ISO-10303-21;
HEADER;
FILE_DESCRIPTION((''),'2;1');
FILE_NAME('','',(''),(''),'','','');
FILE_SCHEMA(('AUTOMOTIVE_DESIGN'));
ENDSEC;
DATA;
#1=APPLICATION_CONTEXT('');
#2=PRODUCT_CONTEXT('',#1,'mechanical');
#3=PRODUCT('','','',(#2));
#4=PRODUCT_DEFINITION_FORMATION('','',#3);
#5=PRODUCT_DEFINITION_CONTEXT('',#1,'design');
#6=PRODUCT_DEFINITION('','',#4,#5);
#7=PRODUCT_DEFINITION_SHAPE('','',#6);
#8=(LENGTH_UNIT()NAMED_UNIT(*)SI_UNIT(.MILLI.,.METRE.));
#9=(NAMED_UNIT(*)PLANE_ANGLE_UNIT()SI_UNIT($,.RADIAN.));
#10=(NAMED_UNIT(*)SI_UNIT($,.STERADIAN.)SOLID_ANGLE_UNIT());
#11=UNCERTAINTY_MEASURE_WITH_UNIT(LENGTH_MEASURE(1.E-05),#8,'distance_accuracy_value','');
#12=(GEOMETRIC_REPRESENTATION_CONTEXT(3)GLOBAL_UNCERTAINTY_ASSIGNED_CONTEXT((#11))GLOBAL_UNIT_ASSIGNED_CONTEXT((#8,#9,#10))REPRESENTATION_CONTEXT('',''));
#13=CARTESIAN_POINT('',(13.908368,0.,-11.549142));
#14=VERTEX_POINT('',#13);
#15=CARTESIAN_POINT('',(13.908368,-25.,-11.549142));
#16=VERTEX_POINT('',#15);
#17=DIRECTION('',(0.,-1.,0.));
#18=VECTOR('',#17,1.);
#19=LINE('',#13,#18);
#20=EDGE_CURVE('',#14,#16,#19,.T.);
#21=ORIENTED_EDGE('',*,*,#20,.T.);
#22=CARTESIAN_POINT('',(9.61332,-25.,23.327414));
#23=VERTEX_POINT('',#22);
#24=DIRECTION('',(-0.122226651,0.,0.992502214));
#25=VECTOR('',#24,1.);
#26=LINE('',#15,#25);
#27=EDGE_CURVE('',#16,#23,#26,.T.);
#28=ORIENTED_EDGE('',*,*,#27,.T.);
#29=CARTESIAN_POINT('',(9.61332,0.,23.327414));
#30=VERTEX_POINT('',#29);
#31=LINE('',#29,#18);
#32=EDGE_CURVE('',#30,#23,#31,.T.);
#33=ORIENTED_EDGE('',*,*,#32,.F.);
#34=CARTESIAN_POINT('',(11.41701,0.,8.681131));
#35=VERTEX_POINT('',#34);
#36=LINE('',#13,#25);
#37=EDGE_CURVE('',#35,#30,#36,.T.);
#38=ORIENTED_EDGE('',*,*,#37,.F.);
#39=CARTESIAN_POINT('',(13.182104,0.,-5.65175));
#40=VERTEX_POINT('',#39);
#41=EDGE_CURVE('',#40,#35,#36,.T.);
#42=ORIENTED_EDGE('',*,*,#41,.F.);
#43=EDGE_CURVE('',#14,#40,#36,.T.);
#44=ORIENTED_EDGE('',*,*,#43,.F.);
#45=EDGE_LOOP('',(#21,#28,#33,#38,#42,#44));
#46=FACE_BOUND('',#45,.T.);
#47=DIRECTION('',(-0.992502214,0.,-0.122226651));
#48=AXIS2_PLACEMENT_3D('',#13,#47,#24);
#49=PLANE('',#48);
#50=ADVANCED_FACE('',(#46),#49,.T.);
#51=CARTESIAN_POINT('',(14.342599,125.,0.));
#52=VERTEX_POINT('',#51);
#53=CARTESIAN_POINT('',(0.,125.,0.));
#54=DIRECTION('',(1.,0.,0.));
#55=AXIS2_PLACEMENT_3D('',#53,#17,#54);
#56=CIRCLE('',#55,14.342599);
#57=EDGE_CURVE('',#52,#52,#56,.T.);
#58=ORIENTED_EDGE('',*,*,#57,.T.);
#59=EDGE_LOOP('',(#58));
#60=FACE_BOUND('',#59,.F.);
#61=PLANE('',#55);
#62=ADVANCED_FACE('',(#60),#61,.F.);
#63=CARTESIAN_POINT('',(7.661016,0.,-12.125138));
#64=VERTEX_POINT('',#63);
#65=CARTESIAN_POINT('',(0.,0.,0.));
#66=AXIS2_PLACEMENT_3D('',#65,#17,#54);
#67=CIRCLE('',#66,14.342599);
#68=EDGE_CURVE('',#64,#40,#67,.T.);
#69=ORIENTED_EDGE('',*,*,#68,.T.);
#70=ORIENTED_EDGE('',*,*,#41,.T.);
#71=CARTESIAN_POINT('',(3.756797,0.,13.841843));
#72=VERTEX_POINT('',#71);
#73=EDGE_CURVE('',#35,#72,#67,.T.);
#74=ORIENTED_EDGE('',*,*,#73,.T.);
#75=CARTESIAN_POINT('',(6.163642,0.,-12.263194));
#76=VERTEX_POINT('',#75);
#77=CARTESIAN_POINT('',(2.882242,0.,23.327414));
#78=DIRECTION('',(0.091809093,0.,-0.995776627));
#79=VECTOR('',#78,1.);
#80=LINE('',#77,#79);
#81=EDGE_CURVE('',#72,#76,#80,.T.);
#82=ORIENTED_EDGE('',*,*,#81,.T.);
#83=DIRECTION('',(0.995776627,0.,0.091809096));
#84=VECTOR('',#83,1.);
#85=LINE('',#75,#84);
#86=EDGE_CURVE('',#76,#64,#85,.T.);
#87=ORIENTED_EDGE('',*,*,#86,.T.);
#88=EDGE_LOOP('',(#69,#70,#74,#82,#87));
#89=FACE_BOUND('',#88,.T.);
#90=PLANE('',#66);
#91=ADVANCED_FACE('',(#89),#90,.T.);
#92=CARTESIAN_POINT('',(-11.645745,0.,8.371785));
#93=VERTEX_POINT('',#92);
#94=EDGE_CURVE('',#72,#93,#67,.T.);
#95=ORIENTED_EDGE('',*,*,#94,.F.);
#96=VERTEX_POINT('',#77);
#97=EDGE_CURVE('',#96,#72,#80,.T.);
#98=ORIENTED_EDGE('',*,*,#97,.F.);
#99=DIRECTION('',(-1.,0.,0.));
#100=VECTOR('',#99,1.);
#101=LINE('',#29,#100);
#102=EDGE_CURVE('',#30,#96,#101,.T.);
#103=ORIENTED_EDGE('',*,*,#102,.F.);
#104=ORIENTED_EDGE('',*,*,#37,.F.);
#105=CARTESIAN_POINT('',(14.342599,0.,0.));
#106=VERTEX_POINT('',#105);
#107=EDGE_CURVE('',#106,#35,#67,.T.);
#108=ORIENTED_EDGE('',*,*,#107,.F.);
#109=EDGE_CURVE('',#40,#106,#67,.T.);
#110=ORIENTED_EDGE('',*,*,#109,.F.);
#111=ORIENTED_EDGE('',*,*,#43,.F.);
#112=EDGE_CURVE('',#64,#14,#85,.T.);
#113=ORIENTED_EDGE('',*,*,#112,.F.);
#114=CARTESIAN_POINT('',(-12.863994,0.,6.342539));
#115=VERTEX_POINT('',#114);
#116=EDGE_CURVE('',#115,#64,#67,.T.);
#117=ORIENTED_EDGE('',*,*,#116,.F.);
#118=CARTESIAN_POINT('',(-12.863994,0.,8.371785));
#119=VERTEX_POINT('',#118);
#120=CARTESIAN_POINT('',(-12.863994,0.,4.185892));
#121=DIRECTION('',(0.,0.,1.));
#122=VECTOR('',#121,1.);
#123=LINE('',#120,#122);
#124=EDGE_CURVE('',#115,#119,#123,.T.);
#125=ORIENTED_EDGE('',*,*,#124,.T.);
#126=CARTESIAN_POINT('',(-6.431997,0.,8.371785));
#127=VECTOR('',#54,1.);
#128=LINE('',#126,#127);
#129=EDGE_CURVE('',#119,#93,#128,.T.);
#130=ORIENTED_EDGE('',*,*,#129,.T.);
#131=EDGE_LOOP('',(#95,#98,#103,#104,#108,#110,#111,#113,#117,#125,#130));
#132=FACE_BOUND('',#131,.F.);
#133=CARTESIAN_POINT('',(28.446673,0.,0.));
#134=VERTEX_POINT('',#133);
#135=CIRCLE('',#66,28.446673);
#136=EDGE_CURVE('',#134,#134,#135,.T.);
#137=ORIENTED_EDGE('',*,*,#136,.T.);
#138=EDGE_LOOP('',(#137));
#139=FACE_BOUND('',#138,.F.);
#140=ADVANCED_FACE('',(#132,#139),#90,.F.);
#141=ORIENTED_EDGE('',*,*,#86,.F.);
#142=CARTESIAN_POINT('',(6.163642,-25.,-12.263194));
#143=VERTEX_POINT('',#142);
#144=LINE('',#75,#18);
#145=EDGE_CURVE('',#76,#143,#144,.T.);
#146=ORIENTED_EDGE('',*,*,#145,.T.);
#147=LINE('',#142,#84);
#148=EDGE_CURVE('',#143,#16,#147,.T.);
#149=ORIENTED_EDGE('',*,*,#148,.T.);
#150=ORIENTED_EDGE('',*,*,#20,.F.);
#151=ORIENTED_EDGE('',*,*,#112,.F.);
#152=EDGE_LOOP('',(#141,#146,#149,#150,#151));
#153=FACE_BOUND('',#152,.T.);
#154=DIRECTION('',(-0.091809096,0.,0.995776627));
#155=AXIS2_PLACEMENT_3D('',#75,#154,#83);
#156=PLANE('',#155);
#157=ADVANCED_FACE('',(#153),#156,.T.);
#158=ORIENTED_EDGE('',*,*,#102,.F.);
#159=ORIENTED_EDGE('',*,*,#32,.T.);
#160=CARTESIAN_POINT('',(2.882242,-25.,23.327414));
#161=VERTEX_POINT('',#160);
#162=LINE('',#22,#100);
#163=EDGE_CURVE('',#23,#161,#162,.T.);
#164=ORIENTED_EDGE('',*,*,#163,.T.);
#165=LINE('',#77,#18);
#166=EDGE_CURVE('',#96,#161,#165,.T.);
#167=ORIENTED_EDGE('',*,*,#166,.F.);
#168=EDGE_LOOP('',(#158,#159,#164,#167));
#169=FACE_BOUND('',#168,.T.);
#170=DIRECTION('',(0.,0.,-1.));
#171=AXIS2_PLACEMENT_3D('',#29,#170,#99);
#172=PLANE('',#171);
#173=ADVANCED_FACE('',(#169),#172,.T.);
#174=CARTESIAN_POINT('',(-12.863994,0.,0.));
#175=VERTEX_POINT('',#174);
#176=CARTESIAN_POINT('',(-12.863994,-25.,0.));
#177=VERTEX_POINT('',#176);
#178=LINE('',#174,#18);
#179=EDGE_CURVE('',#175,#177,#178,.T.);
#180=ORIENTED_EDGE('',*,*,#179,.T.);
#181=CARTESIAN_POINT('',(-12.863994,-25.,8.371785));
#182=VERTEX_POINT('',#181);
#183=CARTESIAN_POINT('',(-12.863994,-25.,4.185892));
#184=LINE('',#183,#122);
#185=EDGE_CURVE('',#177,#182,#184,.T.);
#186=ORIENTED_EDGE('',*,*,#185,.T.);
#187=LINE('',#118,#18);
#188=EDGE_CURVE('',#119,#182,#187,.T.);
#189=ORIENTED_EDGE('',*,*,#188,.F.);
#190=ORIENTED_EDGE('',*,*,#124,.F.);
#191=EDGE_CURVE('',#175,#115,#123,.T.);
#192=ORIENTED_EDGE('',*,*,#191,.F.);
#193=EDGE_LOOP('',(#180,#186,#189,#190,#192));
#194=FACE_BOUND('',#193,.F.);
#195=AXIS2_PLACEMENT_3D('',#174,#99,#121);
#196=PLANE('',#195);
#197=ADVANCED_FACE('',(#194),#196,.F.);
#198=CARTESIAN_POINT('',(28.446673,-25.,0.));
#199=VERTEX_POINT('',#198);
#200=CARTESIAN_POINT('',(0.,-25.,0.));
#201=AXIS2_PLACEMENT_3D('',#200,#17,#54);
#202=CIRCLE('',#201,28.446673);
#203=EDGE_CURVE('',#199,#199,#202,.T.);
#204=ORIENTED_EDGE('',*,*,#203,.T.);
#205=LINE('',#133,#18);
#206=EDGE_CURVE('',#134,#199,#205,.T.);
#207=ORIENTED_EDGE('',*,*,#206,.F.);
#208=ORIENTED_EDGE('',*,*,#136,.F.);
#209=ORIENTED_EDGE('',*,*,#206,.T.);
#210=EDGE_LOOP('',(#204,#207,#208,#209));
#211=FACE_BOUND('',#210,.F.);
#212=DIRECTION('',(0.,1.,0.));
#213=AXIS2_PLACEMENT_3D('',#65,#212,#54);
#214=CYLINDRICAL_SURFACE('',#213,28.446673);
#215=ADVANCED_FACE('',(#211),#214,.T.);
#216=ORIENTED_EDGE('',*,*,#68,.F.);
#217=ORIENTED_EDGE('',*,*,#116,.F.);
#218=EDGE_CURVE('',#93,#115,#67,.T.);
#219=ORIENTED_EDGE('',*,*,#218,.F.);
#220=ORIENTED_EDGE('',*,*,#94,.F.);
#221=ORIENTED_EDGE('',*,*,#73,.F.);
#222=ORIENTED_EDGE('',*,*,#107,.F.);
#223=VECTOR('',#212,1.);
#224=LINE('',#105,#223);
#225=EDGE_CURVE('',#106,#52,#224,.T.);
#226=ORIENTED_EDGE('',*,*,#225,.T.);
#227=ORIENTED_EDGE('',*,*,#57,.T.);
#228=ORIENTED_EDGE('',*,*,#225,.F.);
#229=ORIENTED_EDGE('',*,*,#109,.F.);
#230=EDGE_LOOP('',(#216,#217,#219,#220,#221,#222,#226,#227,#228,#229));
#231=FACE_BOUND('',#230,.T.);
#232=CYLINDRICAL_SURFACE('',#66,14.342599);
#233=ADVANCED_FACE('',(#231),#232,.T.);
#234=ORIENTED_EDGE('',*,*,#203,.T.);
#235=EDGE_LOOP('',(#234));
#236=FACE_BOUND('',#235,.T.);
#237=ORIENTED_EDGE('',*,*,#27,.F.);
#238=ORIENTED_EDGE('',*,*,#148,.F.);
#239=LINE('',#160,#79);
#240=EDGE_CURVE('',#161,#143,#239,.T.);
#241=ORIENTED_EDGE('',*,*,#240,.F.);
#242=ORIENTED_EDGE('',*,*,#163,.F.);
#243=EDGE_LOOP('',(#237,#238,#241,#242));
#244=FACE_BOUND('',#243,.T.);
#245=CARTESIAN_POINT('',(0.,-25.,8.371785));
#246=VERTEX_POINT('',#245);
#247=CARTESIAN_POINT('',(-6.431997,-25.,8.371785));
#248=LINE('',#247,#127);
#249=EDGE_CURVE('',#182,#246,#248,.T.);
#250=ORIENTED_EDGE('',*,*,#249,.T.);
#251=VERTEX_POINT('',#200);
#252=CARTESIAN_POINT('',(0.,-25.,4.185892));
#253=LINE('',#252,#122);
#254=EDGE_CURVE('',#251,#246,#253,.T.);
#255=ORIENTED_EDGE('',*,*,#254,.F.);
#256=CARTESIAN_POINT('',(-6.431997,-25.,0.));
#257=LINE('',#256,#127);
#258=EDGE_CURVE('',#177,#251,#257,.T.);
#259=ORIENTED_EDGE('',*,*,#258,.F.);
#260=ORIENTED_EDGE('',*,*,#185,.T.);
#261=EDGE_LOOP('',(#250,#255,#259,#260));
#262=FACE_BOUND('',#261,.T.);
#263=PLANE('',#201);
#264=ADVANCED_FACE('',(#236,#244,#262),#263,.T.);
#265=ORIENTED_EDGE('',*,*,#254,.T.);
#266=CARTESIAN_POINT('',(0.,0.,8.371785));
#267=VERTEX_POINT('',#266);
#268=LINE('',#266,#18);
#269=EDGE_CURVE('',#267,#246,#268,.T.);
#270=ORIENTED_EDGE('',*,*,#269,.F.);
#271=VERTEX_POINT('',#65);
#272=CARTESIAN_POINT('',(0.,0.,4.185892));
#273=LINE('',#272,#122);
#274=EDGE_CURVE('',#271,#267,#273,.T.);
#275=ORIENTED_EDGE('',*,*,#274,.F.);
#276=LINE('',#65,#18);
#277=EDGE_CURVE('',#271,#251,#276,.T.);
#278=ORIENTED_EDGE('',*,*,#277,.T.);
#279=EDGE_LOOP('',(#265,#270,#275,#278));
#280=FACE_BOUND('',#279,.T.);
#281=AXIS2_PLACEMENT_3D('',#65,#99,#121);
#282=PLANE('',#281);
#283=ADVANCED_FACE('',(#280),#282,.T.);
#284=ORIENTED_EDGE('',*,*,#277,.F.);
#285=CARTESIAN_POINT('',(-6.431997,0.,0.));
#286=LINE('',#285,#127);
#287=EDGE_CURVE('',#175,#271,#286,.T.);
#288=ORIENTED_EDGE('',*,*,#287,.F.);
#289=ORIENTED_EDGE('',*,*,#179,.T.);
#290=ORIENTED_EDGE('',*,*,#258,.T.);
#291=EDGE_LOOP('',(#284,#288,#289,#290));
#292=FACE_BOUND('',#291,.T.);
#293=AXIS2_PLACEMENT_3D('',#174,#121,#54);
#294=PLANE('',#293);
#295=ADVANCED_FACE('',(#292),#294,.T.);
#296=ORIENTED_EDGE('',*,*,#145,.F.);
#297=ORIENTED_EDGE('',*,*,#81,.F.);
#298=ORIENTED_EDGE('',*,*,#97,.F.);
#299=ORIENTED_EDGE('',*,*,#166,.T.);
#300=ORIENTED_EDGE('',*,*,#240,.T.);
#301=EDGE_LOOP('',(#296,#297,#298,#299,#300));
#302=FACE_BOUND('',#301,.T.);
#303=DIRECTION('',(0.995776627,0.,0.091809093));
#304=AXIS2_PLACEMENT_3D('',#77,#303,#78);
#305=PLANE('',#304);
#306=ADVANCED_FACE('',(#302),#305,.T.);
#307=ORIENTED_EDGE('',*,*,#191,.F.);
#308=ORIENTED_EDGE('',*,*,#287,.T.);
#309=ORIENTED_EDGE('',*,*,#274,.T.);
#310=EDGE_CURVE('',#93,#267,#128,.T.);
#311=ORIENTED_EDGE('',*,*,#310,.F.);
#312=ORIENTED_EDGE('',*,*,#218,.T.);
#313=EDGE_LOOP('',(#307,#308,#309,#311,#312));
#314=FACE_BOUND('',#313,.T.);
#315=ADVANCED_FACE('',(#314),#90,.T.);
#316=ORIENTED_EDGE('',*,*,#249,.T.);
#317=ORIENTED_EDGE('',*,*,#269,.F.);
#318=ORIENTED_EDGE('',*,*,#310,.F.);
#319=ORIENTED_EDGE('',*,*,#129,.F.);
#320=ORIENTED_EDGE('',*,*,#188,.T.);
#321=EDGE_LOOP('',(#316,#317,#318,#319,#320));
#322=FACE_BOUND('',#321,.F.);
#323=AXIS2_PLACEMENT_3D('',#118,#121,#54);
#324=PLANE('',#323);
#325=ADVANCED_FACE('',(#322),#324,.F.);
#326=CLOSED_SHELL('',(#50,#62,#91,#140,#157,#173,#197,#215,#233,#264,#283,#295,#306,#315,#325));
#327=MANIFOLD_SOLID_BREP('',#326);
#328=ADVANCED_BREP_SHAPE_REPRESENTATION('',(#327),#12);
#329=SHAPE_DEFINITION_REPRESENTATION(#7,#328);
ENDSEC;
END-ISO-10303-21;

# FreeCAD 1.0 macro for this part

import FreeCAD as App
import Part
import Sketcher

V = App.Vector
Q = App.Units.Quantity

doc = App.newDocument("Part")
body = doc.addObject("PartDesign::Body", "Body")

# Sketch on XZ plane
sketch1 = doc.addObject("Sketcher::SketchObject", "Sketch")
body.addObject(sketch1)
sketch1.AttachmentSupport = (doc.XZ_Plane, [""])
sketch1.MapMode = "FlatFace"
sketch1.addGeometry(Part.Circle(V(0, 0, 0), V(0, 0, 1), 28.446673), False)
sketch1.addConstraint([
    Sketcher.Constraint("Coincident", 0, 3, -1, 1),
    Sketcher.Constraint("Diameter", 0, Q("56.893346 mm")),
])
pad1 = doc.addObject("PartDesign::Pad", "Pad")
body.addObject(pad1)
pad1.Profile = sketch1
pad1.Length = 25

# Sketch on XZ plane
sketch2 = doc.addObject("Sketcher::SketchObject", "Sketch001")
body.addObject(sketch2)
sketch2.AttachmentSupport = (doc.XZ_Plane, [""])
sketch2.MapMode = "FlatFace"
sketch2.addGeometry([
    Part.LineSegment(V(-12.863994, 8.371785, 0), V(-12.863994, 0, 0)),
    Part.LineSegment(V(-12.863994, 0, 0), V(0, 0, 0)),
    Part.LineSegment(V(0, 0, 0), V(0, 8.371785, 0)),
    Part.LineSegment(V(0, 8.371785, 0), V(-12.863994, 8.371785, 0)),
], False)
sketch2.addConstraint([
    Sketcher.Constraint("Coincident", 0, 2, 1, 1),
    Sketcher.Constraint("Coincident", 1, 2, 2, 1),
    Sketcher.Constraint("Coincident", 2, 2, 3, 1),
    Sketcher.Constraint("Coincident", 3, 2, 0, 1),
    Sketcher.Constraint("Vertical", 0),
    Sketcher.Constraint("Horizontal", 1),
    Sketcher.Constraint("Vertical", 2),
    Sketcher.Constraint("Horizontal", 3),
    Sketcher.Constraint("Coincident", 1, 2, -1, 1),
    Sketcher.Constraint("DistanceX", 1, 1, 1, 2, Q("12.863994 mm")),
    Sketcher.Constraint("DistanceY", 0, 2, 0, 1, Q("8.371785 mm")),
])
pocket1 = doc.addObject("PartDesign::Pocket", "Pocket")
body.addObject(pocket1)
pocket1.Profile = sketch2
pocket1.Length = 25
pocket1.Reversed = True

# Sketch on XZ plane
sketch3 = doc.addObject("Sketcher::SketchObject", "Sketch002")
body.addObject(sketch3)
sketch3.AttachmentSupport = (doc.XZ_Plane, [""])
sketch3.MapMode = "FlatFace"
sketch3.addGeometry([
    Part.LineSegment(V(13.908368, -11.549142, 0), V(9.61332, 23.327414, 0)),
    Part.LineSegment(V(9.61332, 23.327414, 0), V(2.882242, 23.327414, 0)),
    Part.LineSegment(V(2.882242, 23.327414, 0), V(6.163642, -12.263194, 0)),
    Part.LineSegment(V(6.163642, -12.263194, 0), V(13.908368, -11.549142, 0)),
], False)
sketch3.addConstraint([
    Sketcher.Constraint("Coincident", 0, 2, 1, 1),
    Sketcher.Constraint("Coincident", 1, 2, 2, 1),
    Sketcher.Constraint("Coincident", 2, 2, 3, 1),
    Sketcher.Constraint("Coincident", 3, 2, 0, 1),
    Sketcher.Constraint("Horizontal", 1),
    Sketcher.Constraint("Perpendicular", 2, 3),
    Sketcher.Constraint("DistanceX", 1, 2, 2, 2, Q("3.2814 mm")),
    Sketcher.Constraint("Distance", 0, Q("35.140028 mm")),
    Sketcher.Constraint("DistanceX", 1, 2, 1, 1, Q("6.731078 mm")),
    Sketcher.Constraint("DistanceX", -1, 1, 0, 2, Q("9.61332 mm")),
    Sketcher.Constraint("DistanceY", 2, 2, 1, 2, Q("35.590608 mm")),
    Sketcher.Constraint("DistanceY", -1, 1, 0, 2, Q("23.327414 mm")),
])
pocket2 = doc.addObject("PartDesign::Pocket", "Pocket001")
body.addObject(pocket2)
pocket2.Profile = sketch3
pocket2.Length = 25
pocket2.Reversed = True

# Sketch on XZ plane
sketch4 = doc.addObject("Sketcher::SketchObject", "Sketch003")
body.addObject(sketch4)
sketch4.AttachmentSupport = (doc.XZ_Plane, [""])
sketch4.MapMode = "FlatFace"
sketch4.addGeometry(Part.Circle(V(0, 0, 0), V(0, 0, 1), 14.342599), False)
sketch4.addConstraint([
    Sketcher.Constraint("Coincident", 0, 3, -1, 1),
    Sketcher.Constraint("Diameter", 0, Q("28.685198 mm")),
])
pad2 = doc.addObject("PartDesign::Pad", "Pad001")
body.addObject(pad2)
pad2.Profile = sketch4
pad2.Length = 125
pad2.Reversed = True

doc.recompute()
